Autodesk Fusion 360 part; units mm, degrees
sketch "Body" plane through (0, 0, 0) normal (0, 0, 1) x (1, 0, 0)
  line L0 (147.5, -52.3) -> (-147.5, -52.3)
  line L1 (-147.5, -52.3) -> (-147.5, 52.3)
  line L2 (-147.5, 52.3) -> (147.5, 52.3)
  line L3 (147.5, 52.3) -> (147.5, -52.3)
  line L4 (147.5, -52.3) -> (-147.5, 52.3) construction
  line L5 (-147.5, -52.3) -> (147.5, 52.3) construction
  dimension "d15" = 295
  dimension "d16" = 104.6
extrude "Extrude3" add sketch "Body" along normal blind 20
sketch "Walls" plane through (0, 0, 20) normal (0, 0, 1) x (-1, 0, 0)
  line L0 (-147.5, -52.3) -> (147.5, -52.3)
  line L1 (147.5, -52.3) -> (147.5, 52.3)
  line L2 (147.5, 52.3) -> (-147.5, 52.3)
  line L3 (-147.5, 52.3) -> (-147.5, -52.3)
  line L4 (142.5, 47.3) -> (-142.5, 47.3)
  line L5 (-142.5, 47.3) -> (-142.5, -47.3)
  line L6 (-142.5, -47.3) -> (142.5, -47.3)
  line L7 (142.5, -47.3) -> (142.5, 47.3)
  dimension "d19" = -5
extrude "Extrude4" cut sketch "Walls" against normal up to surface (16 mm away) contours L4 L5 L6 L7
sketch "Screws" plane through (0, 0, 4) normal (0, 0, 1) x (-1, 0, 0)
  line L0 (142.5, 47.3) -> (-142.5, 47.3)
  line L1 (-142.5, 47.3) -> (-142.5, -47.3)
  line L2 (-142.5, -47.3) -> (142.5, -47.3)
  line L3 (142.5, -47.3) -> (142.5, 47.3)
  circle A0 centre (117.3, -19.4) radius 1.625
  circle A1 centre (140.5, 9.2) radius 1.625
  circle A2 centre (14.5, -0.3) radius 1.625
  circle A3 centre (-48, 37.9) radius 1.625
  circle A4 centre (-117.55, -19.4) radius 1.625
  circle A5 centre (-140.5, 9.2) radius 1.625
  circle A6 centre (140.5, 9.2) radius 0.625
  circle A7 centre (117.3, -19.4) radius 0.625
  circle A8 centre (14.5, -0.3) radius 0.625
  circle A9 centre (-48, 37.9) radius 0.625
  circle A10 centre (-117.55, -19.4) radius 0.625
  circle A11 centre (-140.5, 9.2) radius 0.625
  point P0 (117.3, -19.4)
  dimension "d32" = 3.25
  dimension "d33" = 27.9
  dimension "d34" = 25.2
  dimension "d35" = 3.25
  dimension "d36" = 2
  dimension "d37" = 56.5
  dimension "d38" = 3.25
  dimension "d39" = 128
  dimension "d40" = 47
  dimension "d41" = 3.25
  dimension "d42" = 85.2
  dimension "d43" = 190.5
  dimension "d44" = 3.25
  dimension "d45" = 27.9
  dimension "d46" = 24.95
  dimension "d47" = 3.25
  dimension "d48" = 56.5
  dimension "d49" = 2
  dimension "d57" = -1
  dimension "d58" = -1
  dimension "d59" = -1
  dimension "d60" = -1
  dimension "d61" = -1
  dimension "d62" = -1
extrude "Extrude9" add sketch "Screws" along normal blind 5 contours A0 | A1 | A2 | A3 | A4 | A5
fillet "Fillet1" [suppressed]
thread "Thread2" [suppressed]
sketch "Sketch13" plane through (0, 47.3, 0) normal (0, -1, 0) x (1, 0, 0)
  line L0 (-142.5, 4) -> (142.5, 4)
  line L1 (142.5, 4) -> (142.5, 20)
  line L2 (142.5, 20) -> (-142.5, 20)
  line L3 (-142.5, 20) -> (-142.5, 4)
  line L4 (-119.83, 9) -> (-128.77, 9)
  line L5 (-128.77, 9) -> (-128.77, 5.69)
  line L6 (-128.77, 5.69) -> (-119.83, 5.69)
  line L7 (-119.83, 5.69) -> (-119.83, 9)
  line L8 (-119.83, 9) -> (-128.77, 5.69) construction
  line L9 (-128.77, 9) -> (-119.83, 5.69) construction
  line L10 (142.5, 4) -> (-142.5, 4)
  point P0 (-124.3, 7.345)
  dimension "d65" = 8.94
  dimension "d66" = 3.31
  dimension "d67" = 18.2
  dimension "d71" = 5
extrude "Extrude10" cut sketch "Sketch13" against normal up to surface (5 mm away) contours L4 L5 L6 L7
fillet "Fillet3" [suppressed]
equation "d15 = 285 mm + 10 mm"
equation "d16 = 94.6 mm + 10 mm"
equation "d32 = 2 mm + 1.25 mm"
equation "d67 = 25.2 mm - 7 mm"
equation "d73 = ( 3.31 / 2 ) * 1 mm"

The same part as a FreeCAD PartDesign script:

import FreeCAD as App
import Part
import Sketcher

V = App.Vector


def add_polygon(sketch, points):
    """Adds a closed chain of lines whose ends are joined by coincident constraints."""
    first, n = sketch.GeometryCount, len(points)
    for a, b in zip(points, points[1:] + points[:1]):
        sketch.addGeometry(Part.LineSegment(App.Vector(*a, 0), App.Vector(*b, 0)), False)
    for i in range(n):
        sketch.addConstraint(Sketcher.Constraint("Coincident", first + i, 2, first + (i + 1) % n, 1))

doc = App.newDocument("Part")
params = doc.addObject("Spreadsheet::Sheet", "Params")
for row, (alias, value) in enumerate([
    ("sketch1_width", "295 mm"),
    ("sketch1_height", "104.6 mm"),
    ("pad1_length", "20 mm"),
    ("sketch2_width", "285 mm"),
    ("sketch2_height", "94.6 mm"),
    ("pocket1_length", "16 mm"),
    ("sketch3_diameter", "3.25 mm"),
    ("sketch3_diameter2", "1.25 mm"),
    ("pad2_length", "5 mm"),
    ("sketch4_width", "8.94 mm"),
    ("sketch4_height", "3.31 mm"),
    ("pocket2_length", "5 mm"),
], start=1):
    params.set(f"A{row}", alias)
    params.set(f"B{row}", "=" + value)
    params.setAlias(f"B{row}", alias)

body = doc.addObject("PartDesign::Body", "Body")

sketch1 = doc.addObject("Sketcher::SketchObject", "Sketch")
body.addObject(sketch1)
sketch1.AttachmentSupport = (doc.XY_Plane, [""])
sketch1.MapMode = "FlatFace"
add_polygon(sketch1, [(-148, -52), (148, -52), (148, 52), (-148, 52)])
sketch1.addConstraint([
    Sketcher.Constraint("Horizontal", 0),
    Sketcher.Constraint("Vertical", 1),
    Sketcher.Constraint("Horizontal", 2),
    Sketcher.Constraint("Vertical", 3),
    Sketcher.Constraint("Symmetric", 0, 2, 2, 2, -1, 1),
    Sketcher.Constraint("DistanceX", 0, 1, 0, 2, 295.0),
    Sketcher.Constraint("DistanceY", 1, 1, 1, 2, 104.6),
])
sketch1.setExpression("Constraints[9]", "Params.sketch1_width")
sketch1.setExpression("Constraints[10]", "Params.sketch1_height")
pad1 = doc.addObject("PartDesign::Pad", "Pad")
body.addObject(pad1)
pad1.Profile = sketch1
pad1.setExpression("Length", "Params.pad1_length")

sketch2 = doc.addObject("Sketcher::SketchObject", "Sketch001")
body.addObject(sketch2)
sketch2.AttachmentSupport = (doc.XY_Plane, [""])
sketch2.MapMode = "FlatFace"
sketch2.AttachmentOffset = App.Placement(V(0, 0, 20), App.Rotation())
add_polygon(sketch2, [(-142, 47), (-142, -47), (142, -47), (142, 47)])
sketch2.addConstraint([
    Sketcher.Constraint("Vertical", 0),
    Sketcher.Constraint("Horizontal", 1),
    Sketcher.Constraint("Vertical", 2),
    Sketcher.Constraint("Horizontal", 3),
    Sketcher.Constraint("Symmetric", 0, 2, 2, 2, -1, 1),
    Sketcher.Constraint("DistanceX", 1, 1, 1, 2, 285.0),
    Sketcher.Constraint("DistanceY", 0, 2, 0, 1, 94.6),
])
sketch2.setExpression("Constraints[9]", "Params.sketch2_width")
sketch2.setExpression("Constraints[10]", "Params.sketch2_height")
pocket1 = doc.addObject("PartDesign::Pocket", "Pocket")
body.addObject(pocket1)
pocket1.Profile = sketch2
pocket1.setExpression("Length", "Params.pocket1_length")

sketch3 = doc.addObject("Sketcher::SketchObject", "Sketch002")
body.addObject(sketch3)
sketch3.AttachmentSupport = (doc.XY_Plane, [""])
sketch3.MapMode = "FlatFace"
sketch3.AttachmentOffset = App.Placement(V(0, 0, 4), App.Rotation())
sketch3.addGeometry([
    Part.Circle(V(-117.3, 19.4, 0), V(0, 0, 1), 1.6),
    Part.Circle(V(-117.3, 19.4, 0), V(0, 0, 1), 0.6),
    Part.Circle(V(-140.5, -9.2, 0), V(0, 0, 1), 1.6),
    Part.Circle(V(-140.5, -9.2, 0), V(0, 0, 1), 0.6),
    Part.Circle(V(-14.5, 0.3, 0), V(0, 0, 1), 1.6),
    Part.Circle(V(-14.5, 0.3, 0), V(0, 0, 1), 0.6),
    Part.Circle(V(48, -37.9, 0), V(0, 0, 1), 1.6),
    Part.Circle(V(48, -37.9, 0), V(0, 0, 1), 0.6),
    Part.Circle(V(117.5, 19.4, 0), V(0, 0, 1), 1.6),
    Part.Circle(V(117.5, 19.4, 0), V(0, 0, 1), 0.6),
    Part.Circle(V(140.5, -9.2, 0), V(0, 0, 1), 1.6),
    Part.Circle(V(140.5, -9.2, 0), V(0, 0, 1), 0.6),
], False)
sketch3.addConstraint([
    Sketcher.Constraint("Coincident", 1, 3, 0, 3),
    Sketcher.Constraint("Coincident", 3, 3, 2, 3),
    Sketcher.Constraint("Coincident", 5, 3, 4, 3),
    Sketcher.Constraint("Coincident", 7, 3, 6, 3),
    Sketcher.Constraint("Coincident", 9, 3, 8, 3),
    Sketcher.Constraint("Coincident", 11, 3, 10, 3),
    Sketcher.Constraint("Equal", 0, 2),
    Sketcher.Constraint("Equal", 1, 3),
    Sketcher.Constraint("Equal", 2, 4),
    Sketcher.Constraint("Equal", 3, 5),
    Sketcher.Constraint("Equal", 4, 6),
    Sketcher.Constraint("Equal", 5, 7),
    Sketcher.Constraint("Equal", 6, 8),
    Sketcher.Constraint("Equal", 7, 9),
    Sketcher.Constraint("Equal", 8, 10),
    Sketcher.Constraint("Equal", 9, 11),
    Sketcher.Constraint("Symmetric", 2, 3, 10, 3, -2),
    Sketcher.Constraint("Horizontal", 1, 3, 8, 3),
    Sketcher.Constraint("Diameter", 0, 3.25),
    Sketcher.Constraint("Diameter", 1, 1.25),
    Sketcher.Constraint("DistanceX", -1, 1, 6, 3, 48.0),
    Sketcher.Constraint("DistanceX", 2, 3, 4, 3, 126.0),
    Sketcher.Constraint("DistanceX", 4, 3, 10, 3, 155.0),
    Sketcher.Constraint("DistanceX", 0, 3, -1, 1, 117.3),
    Sketcher.Constraint("DistanceY", -1, 1, 0, 3, 19.4),
    Sketcher.Constraint("DistanceY", 2, 3, -1, 1, 9.2),
    Sketcher.Constraint("DistanceY", -1, 1, 4, 3, 0.3),
    Sketcher.Constraint("DistanceY", 6, 3, -1, 1, 37.9),
    Sketcher.Constraint("DistanceX", -1, 1, 8, 3, 117.55),
])
sketch3.setExpression("Constraints[18]", "Params.sketch3_diameter")
sketch3.setExpression("Constraints[19]", "Params.sketch3_diameter2")
pad2 = doc.addObject("PartDesign::Pad", "Pad001")
body.addObject(pad2)
pad2.Profile = sketch3
pad2.setExpression("Length", "Params.pad2_length")

sketch4 = doc.addObject("Sketcher::SketchObject", "Sketch003")
body.addObject(sketch4)
sketch4.AttachmentSupport = (doc.XZ_Plane, [""])
sketch4.MapMode = "FlatFace"
sketch4.AttachmentOffset = App.Placement(V(0, 0, -47.3), App.Rotation())
add_polygon(sketch4, [(-119.8, 5.7), (-119.8, 9), (-128.8, 9), (-128.8, 5.7)])
sketch4.addConstraint([
    Sketcher.Constraint("Vertical", 0),
    Sketcher.Constraint("Horizontal", 1),
    Sketcher.Constraint("Vertical", 2),
    Sketcher.Constraint("Horizontal", 3),
    Sketcher.Constraint("DistanceX", 1, 2, 1, 1, 8.94),
    Sketcher.Constraint("DistanceY", 0, 1, 0, 2, 3.31),
    Sketcher.Constraint("DistanceY", -1, 1, 0, 2, 9.0),
    Sketcher.Constraint("DistanceX", 0, 2, -1, 1, 119.83),
])
sketch4.setExpression("Constraints[8]", "Params.sketch4_width")
sketch4.setExpression("Constraints[9]", "Params.sketch4_height")
pocket2 = doc.addObject("PartDesign::Pocket", "Pocket001")
body.addObject(pocket2)
pocket2.Profile = sketch4
pocket2.setExpression("Length", "Params.pocket2_length")

doc.recompute()
